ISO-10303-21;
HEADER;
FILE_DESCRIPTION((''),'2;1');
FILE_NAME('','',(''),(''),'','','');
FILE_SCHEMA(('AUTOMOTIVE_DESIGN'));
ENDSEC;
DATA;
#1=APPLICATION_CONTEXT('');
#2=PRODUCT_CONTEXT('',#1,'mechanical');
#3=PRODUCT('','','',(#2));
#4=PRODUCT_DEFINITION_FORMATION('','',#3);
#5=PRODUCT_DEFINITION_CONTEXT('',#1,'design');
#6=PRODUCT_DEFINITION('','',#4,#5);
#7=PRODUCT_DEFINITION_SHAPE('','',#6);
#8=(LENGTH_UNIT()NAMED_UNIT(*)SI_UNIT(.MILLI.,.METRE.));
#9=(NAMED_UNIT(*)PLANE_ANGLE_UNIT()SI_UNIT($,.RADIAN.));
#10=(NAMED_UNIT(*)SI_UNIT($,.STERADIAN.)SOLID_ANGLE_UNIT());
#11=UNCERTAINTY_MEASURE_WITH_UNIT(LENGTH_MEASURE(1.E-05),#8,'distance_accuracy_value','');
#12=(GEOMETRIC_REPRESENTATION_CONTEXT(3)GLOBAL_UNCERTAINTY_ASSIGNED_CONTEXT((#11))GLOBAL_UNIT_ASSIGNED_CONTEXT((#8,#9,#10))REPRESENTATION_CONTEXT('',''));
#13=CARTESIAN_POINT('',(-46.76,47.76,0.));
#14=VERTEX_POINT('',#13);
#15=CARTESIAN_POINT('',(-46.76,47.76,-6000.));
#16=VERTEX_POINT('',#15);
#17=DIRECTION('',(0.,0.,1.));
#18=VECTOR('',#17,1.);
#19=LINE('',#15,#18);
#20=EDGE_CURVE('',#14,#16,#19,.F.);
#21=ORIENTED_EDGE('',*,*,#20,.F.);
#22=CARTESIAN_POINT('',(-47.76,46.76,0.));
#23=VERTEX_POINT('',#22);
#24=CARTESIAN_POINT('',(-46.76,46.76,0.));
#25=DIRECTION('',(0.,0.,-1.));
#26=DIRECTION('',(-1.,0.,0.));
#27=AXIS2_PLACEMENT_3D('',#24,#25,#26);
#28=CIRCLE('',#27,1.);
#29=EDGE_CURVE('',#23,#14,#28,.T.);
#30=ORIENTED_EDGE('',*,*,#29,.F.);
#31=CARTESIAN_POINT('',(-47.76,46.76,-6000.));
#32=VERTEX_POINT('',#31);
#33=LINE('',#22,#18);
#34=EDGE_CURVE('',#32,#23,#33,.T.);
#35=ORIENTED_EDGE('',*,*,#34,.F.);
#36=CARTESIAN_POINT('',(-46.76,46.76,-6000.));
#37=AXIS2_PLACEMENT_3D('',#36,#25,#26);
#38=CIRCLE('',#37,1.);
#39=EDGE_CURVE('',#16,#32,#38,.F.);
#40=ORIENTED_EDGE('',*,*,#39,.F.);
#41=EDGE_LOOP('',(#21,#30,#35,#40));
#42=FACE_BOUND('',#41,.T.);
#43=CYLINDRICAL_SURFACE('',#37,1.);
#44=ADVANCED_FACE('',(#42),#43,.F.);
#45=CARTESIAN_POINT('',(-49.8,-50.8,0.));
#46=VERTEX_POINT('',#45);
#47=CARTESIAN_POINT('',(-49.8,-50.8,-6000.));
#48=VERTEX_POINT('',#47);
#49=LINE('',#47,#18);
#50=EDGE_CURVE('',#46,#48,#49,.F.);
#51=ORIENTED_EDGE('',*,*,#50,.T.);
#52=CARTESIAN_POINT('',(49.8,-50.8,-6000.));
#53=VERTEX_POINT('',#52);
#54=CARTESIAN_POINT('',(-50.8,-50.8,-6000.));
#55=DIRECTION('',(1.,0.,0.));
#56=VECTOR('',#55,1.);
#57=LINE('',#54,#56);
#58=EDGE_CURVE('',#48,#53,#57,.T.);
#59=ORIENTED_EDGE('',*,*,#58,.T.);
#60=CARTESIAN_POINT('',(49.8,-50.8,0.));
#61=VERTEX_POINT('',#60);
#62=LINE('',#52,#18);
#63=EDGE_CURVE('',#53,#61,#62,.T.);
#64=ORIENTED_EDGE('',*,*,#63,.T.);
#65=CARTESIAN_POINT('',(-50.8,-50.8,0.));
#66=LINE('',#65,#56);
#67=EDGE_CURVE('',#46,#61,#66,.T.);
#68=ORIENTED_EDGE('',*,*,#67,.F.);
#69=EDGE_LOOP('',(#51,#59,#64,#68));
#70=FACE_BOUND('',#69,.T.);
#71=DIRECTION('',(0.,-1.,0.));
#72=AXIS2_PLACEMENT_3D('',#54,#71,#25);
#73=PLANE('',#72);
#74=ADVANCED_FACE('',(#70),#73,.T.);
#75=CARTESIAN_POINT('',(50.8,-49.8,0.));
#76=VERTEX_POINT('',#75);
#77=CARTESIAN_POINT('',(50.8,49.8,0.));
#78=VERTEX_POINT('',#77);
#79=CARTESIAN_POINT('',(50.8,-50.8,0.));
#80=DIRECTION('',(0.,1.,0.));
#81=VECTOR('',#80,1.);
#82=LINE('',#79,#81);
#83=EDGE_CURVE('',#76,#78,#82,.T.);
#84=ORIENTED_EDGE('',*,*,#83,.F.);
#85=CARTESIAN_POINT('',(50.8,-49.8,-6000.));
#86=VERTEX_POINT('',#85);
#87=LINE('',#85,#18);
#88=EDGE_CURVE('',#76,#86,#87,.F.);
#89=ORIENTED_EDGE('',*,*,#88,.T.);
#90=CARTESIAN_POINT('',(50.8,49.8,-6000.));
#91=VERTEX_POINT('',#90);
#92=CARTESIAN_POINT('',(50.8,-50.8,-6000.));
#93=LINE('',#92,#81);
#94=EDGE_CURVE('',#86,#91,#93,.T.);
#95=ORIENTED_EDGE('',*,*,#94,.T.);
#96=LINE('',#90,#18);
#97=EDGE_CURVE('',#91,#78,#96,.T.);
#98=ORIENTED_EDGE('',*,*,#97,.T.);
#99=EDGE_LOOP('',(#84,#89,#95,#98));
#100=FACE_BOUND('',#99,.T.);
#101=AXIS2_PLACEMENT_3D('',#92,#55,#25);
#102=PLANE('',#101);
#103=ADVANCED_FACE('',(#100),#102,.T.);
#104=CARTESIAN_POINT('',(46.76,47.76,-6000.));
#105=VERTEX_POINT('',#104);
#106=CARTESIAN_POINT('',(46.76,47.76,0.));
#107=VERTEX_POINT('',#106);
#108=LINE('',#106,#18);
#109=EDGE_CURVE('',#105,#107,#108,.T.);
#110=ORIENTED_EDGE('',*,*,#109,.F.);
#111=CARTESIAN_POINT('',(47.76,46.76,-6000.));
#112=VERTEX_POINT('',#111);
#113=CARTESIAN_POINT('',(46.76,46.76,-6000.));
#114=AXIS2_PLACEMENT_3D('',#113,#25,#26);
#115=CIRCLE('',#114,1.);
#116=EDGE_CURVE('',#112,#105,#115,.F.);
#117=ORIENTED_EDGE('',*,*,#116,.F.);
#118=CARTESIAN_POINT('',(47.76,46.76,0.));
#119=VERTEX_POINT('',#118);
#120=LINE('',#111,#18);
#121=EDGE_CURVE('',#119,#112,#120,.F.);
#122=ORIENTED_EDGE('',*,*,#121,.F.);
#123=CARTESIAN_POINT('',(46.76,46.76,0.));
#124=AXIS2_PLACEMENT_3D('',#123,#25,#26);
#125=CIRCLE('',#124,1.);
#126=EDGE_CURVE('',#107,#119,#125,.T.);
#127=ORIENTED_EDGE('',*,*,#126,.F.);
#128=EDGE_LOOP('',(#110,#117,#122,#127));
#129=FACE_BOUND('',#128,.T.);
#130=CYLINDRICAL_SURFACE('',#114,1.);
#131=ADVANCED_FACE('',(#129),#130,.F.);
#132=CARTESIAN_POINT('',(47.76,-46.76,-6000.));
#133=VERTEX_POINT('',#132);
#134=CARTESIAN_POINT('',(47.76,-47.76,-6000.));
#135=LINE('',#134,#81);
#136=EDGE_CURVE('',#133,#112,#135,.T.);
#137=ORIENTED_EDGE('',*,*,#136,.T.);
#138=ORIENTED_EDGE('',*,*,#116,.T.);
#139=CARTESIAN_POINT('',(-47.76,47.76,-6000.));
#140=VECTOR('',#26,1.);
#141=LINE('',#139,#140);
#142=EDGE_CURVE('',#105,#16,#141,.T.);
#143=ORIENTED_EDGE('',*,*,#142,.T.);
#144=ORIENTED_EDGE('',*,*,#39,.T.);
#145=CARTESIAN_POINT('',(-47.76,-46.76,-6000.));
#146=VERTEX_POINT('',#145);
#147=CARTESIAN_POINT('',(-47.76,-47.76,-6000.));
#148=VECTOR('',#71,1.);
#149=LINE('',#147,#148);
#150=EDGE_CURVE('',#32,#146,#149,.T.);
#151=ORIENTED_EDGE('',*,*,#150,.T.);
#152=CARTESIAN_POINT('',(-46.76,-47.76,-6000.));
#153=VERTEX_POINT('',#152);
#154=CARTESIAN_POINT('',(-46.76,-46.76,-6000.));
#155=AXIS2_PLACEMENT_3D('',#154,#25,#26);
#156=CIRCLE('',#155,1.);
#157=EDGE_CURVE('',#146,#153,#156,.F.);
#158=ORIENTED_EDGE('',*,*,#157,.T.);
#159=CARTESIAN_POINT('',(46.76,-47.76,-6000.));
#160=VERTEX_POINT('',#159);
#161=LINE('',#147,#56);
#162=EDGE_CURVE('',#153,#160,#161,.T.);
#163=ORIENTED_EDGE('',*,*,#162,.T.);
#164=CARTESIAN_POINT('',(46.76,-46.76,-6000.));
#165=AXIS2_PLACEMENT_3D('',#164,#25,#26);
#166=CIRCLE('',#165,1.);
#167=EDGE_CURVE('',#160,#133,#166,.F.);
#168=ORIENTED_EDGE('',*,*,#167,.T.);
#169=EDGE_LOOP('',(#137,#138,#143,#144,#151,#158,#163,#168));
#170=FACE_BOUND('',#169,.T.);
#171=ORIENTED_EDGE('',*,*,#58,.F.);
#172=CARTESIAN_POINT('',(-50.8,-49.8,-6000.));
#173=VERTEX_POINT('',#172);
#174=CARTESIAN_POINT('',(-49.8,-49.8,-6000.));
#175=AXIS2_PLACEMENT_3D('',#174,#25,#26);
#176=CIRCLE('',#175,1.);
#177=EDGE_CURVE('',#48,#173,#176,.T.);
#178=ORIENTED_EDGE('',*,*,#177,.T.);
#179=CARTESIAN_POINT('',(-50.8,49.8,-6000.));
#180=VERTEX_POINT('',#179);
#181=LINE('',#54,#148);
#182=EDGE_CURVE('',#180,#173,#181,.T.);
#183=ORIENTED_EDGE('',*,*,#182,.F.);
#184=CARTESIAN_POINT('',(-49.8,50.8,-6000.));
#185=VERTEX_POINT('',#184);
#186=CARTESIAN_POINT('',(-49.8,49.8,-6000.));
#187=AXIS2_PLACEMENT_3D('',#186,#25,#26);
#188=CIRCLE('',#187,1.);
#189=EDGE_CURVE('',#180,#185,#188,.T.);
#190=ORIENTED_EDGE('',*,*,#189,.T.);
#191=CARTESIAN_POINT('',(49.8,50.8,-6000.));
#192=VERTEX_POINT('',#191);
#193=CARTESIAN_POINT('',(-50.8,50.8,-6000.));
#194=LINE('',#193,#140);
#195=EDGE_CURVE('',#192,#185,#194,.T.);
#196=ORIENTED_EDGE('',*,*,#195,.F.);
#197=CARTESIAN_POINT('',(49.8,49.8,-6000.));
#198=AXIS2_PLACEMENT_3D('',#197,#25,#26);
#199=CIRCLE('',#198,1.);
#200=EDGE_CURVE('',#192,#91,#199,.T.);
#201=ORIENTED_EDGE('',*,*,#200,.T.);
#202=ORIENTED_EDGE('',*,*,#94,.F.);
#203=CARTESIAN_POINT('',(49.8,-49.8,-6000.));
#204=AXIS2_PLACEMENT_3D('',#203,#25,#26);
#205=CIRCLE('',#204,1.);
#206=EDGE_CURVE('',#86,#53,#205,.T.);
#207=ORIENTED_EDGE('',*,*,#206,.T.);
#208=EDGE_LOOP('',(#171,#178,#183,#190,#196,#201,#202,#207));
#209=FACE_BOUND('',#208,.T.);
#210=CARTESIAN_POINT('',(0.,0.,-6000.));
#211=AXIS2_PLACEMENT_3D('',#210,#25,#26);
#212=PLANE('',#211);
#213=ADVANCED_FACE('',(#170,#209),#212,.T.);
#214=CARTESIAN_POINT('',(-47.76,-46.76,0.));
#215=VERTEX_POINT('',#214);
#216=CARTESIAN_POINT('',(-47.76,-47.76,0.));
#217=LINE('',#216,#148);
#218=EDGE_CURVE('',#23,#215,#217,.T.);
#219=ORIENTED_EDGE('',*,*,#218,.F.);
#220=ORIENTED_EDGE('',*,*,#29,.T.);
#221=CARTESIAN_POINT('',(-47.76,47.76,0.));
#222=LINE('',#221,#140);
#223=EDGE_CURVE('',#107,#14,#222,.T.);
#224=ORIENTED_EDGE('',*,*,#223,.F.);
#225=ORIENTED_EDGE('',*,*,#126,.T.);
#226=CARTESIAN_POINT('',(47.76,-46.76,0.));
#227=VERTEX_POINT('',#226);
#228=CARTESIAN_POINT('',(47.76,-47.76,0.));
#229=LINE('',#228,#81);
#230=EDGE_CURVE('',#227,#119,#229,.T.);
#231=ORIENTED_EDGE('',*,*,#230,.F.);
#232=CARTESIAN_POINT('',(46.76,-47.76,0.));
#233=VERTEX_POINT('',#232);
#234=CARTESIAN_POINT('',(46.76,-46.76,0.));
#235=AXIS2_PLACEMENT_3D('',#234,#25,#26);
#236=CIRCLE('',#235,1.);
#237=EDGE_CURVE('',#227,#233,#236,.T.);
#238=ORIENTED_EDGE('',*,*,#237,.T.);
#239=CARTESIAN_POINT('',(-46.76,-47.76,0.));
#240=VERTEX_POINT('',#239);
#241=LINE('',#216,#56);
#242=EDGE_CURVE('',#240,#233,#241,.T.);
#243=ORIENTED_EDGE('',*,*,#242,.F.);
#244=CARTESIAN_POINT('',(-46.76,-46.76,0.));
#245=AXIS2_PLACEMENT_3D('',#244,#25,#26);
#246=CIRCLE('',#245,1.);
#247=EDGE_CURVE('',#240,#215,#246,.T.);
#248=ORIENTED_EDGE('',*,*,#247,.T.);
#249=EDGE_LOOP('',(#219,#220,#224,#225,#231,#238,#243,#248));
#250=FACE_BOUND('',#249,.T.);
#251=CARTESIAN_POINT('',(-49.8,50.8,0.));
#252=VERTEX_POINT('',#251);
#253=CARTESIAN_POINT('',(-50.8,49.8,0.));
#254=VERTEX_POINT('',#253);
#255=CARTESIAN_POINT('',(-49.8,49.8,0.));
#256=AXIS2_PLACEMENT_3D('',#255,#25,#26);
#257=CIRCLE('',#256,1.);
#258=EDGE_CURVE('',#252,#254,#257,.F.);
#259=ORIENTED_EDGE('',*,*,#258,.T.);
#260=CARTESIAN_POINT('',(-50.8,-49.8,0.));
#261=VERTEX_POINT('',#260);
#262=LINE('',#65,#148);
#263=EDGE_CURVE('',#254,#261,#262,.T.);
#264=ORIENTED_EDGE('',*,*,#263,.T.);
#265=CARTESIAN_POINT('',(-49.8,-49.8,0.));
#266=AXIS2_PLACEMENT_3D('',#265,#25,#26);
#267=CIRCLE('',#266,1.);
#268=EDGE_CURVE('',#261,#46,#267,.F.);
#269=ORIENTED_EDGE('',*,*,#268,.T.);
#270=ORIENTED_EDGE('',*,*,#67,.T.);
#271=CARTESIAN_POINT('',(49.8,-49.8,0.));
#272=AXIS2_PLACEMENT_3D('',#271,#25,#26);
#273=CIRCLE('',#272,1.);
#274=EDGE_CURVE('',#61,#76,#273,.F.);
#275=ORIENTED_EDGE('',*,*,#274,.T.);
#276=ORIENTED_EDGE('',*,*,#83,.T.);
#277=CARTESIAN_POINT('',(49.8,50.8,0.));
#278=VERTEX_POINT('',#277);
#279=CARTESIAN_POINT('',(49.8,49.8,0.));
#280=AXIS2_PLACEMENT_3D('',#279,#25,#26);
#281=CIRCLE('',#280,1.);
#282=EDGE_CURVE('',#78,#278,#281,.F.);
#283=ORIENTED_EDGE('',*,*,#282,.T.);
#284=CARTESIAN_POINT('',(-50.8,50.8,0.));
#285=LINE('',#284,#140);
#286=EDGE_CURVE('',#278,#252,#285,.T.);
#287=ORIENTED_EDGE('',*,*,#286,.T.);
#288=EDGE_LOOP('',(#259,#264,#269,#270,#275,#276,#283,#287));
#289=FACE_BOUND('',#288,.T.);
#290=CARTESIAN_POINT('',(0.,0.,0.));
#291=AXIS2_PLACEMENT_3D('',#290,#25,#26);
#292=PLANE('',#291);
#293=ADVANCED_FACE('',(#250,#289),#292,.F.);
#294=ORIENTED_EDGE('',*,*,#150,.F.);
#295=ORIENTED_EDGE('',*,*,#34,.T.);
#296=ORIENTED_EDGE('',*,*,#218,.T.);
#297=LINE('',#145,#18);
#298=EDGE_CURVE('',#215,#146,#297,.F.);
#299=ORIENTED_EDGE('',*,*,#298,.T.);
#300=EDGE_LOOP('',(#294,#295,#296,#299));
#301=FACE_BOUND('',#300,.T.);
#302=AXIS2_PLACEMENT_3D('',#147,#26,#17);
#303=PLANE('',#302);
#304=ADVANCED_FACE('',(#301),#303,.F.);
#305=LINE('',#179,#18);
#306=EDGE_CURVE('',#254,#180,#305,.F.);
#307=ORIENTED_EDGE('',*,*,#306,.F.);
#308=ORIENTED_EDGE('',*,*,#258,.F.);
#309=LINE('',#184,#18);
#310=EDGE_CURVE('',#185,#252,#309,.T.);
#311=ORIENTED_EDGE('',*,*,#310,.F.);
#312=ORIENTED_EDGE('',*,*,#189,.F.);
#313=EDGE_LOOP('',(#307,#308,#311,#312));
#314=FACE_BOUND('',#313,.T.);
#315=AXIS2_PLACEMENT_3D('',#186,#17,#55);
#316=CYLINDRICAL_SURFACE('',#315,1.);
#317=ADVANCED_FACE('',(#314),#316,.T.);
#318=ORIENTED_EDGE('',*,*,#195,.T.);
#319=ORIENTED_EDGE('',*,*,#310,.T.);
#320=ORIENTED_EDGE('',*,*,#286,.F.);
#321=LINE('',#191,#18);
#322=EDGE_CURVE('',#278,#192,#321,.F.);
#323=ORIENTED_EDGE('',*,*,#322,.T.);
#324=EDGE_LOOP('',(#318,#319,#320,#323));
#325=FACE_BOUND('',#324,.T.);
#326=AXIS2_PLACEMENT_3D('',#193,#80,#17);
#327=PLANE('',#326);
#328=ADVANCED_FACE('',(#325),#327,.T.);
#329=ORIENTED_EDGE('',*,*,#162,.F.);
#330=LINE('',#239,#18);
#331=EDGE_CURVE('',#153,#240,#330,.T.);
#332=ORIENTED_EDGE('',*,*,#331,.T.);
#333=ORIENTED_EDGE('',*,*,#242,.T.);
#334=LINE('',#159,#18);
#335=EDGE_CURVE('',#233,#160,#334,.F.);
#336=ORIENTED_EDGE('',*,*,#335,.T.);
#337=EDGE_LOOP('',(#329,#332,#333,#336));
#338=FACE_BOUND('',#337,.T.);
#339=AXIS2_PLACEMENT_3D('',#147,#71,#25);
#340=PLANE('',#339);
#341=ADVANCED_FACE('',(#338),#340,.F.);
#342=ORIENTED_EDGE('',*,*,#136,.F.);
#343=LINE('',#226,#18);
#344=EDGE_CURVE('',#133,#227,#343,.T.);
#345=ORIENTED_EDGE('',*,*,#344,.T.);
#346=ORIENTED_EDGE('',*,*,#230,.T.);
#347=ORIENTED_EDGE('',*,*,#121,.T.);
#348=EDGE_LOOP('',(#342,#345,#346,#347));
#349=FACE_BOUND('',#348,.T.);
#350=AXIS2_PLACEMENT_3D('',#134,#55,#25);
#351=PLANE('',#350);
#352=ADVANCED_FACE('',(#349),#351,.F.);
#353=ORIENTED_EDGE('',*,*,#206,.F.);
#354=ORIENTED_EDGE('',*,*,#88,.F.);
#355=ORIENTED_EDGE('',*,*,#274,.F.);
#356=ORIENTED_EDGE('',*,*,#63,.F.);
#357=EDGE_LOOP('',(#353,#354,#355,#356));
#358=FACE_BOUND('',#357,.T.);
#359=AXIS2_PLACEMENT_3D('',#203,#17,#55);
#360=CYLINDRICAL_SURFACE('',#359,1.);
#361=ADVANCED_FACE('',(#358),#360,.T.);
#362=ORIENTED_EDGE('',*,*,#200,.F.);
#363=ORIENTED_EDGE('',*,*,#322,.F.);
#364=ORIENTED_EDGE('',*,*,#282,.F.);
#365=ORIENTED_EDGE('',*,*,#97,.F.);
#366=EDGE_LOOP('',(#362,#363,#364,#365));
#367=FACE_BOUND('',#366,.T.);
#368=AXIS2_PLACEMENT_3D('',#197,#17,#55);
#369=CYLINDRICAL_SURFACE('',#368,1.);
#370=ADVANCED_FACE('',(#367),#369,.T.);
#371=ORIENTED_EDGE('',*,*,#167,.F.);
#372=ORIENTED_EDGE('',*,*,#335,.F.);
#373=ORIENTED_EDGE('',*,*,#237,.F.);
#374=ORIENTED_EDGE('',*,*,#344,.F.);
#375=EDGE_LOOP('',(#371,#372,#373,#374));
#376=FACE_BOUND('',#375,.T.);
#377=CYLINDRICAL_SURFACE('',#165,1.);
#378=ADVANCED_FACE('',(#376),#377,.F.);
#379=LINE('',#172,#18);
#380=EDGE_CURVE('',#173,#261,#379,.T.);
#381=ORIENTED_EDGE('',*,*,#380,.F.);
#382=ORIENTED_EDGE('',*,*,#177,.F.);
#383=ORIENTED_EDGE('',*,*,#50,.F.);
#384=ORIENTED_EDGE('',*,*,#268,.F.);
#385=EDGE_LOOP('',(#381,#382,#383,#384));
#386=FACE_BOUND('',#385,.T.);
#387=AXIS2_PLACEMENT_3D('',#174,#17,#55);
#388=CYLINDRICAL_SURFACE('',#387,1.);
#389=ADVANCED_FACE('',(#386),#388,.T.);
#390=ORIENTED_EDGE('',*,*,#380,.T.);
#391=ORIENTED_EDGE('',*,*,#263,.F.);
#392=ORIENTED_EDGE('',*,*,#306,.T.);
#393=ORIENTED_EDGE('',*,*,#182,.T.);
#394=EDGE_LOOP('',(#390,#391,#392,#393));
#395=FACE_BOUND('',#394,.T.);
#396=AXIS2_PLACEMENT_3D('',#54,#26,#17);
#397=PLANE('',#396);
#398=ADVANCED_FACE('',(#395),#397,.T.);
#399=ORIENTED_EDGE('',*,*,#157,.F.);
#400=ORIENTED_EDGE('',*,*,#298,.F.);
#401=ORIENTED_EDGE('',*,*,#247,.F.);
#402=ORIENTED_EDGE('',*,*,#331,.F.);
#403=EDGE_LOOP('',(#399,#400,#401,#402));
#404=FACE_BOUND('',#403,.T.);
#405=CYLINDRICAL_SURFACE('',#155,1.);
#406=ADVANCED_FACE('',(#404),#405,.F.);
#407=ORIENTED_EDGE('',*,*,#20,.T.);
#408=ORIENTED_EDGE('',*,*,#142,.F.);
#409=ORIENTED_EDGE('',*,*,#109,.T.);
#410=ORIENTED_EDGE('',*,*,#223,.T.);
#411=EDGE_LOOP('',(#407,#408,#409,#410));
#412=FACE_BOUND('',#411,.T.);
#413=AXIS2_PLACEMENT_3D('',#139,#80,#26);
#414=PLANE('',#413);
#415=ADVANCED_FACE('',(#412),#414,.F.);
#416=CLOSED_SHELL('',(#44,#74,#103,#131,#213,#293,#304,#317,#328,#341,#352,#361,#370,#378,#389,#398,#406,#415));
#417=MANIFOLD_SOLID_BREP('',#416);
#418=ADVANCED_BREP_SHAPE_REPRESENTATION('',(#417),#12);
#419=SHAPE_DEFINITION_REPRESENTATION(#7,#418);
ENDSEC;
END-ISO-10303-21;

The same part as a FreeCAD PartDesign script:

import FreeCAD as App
import Part
import Sketcher
Q = App.Units.Quantity


def edges_at(feature, points):
    """Names of the edges that pass closest to the given points."""
    edges = feature.Shape.Edges
    near = lambda p: min(range(len(edges)), key=lambda i: edges[i].distToShape(Part.Vertex(*p))[0])
    return sorted({f"Edge{near(p) + 1}" for p in points})

doc = App.newDocument("Part")
body = doc.addObject("PartDesign::Body", "Body")

# Sketch on XY plane
sketch1 = body.newObject("Sketcher::SketchObject", "Sketch")
sketch1.AttachmentSupport = (doc.getObject("XY_Plane"), [""])
sketch1.MapMode = "FlatFace"
sketch1.addGeometry([
    Part.LineSegment(App.Vector(-50.8, 50.8, 0), App.Vector(-50.8, -50.8, 0)),  # 0
    Part.LineSegment(App.Vector(-50.8, -50.8, 0), App.Vector(50.8, -50.8, 0)),  # 1
    Part.LineSegment(App.Vector(50.8, -50.8, 0), App.Vector(50.8, 50.8, 0)),  # 2
    Part.LineSegment(App.Vector(50.8, 50.8, 0), App.Vector(-50.8, 50.8, 0)),  # 3
    Part.LineSegment(App.Vector(47.76, -47.76, 0), App.Vector(-47.76, -47.76, 0)),  # 4
    Part.LineSegment(App.Vector(-47.76, -47.76, 0), App.Vector(-47.76, 47.76, 0)),  # 5
    Part.LineSegment(App.Vector(-47.76, 47.76, 0), App.Vector(47.76, 47.76, 0)),  # 6
    Part.LineSegment(App.Vector(47.76, 47.76, 0), App.Vector(47.76, -47.76, 0)),  # 7
], False)
sketch1.addConstraint([
    Sketcher.Constraint("Coincident", 0, 2, 1, 1),
    Sketcher.Constraint("Coincident", 1, 2, 2, 1),
    Sketcher.Constraint("Coincident", 2, 2, 3, 1),
    Sketcher.Constraint("Coincident", 3, 2, 0, 1),
    Sketcher.Constraint("Coincident", 4, 2, 5, 1),
    Sketcher.Constraint("Coincident", 5, 2, 6, 1),
    Sketcher.Constraint("Coincident", 6, 2, 7, 1),
    Sketcher.Constraint("Coincident", 7, 2, 4, 1),
    Sketcher.Constraint("Vertical", 0),
    Sketcher.Constraint("Horizontal", 1),
    Sketcher.Constraint("Vertical", 2),
    Sketcher.Constraint("Horizontal", 3),
    Sketcher.Constraint("Horizontal", 4),
    Sketcher.Constraint("Vertical", 5),
    Sketcher.Constraint("Horizontal", 6),
    Sketcher.Constraint("Vertical", 7),
    Sketcher.Constraint("Symmetric", 0, 2, 2, 2, -1, 1),
    Sketcher.Constraint("Symmetric", 4, 2, 6, 2, -1, 1),
    Sketcher.Constraint("Equal", 3, 0),
    Sketcher.Constraint("Equal", 6, 5),
    Sketcher.Constraint("DistanceX", 1, 1, 1, 2, Q("101.6 mm")),
    Sketcher.Constraint("DistanceX", 4, 2, 4, 1, Q("95.52 mm")),
])
pad1 = body.newObject("PartDesign::Pad", "Pad")
pad1.Profile = sketch1
pad1.Length = 6000
pad1.Reversed = True
doc.recompute()

fillet = body.newObject("PartDesign::Fillet", "Fillet")
fillet.Base = (pad1, edges_at(pad1, [
    (47.76, -47.76, -3000),
    (-47.76, -47.76, -3000),
    (-47.76, 47.76, -3000),
    (47.76, 47.76, -3000),
    (50.8, -50.8, -3000),
    (-50.8, -50.8, -3000),
    (-50.8, 50.8, -3000),
    (50.8, 50.8, -3000),
]))
fillet.Radius = 1

doc.recompute()
